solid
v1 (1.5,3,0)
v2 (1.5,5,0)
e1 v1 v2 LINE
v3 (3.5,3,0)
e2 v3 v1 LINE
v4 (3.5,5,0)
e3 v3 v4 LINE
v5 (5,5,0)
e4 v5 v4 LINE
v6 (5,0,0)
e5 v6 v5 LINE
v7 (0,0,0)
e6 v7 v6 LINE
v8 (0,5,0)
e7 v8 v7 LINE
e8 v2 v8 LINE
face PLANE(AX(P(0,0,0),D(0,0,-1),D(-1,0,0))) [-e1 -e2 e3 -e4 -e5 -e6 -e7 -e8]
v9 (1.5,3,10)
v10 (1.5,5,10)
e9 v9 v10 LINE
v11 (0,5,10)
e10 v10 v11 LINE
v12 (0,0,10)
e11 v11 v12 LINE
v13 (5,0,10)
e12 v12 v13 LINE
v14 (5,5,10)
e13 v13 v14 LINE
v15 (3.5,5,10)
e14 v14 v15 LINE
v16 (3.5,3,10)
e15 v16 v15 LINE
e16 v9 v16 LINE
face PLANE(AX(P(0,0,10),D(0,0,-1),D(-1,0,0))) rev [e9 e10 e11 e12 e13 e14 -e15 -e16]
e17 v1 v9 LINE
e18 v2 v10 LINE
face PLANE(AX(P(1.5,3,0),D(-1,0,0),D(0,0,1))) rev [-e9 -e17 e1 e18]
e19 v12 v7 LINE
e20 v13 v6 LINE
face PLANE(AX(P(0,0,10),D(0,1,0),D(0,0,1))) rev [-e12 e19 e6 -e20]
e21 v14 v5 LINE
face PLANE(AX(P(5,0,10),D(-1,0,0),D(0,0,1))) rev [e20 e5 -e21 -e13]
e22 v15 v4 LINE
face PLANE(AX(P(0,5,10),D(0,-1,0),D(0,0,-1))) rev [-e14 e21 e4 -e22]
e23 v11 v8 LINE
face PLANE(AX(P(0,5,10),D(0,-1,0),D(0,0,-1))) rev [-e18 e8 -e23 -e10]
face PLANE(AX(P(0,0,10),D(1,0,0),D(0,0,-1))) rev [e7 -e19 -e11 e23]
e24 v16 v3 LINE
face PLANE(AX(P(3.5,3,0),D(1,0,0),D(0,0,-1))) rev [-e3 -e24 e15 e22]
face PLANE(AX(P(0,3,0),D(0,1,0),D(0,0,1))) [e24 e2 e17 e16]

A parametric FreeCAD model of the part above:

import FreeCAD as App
import Part
import Sketcher
from FreeCAD import Vector

doc = App.newDocument("Part")
body = doc.addObject("PartDesign::Body", "Body")

# Sketch on XY plane
sketch1 = doc.addObject("Sketcher::SketchObject", "Sketch")
body.addObject(sketch1)
sketch1.AttachmentSupport = (doc.XY_Plane, [""])
sketch1.MapMode = "FlatFace"
sketch1.addGeometry(Part.LineSegment(Vector(0, 5, 0), Vector(0, 0, 0)), False)
sketch1.addGeometry(Part.LineSegment(Vector(0, 0, 0), Vector(5, 0, 0)), False)
sketch1.addGeometry(Part.LineSegment(Vector(5, 0, 0), Vector(5, 5, 0)), False)
sketch1.addGeometry(Part.LineSegment(Vector(5, 5, 0), Vector(0, 5, 0)), False)
sketch1.addConstraint(Sketcher.Constraint("Coincident", 0, 2, 1, 1))
sketch1.addConstraint(Sketcher.Constraint("Coincident", 1, 2, 2, 1))
sketch1.addConstraint(Sketcher.Constraint("Coincident", 2, 2, 3, 1))
sketch1.addConstraint(Sketcher.Constraint("Coincident", 3, 2, 0, 1))
sketch1.addConstraint(Sketcher.Constraint("Vertical", 0))
sketch1.addConstraint(Sketcher.Constraint("Horizontal", 1))
sketch1.addConstraint(Sketcher.Constraint("Vertical", 2))
sketch1.addConstraint(Sketcher.Constraint("Horizontal", 3))
sketch1.addConstraint(Sketcher.Constraint("Coincident", 0, 2, -1, 1))
sketch1.addConstraint(Sketcher.Constraint("Equal", 3, 0))
sketch1.addConstraint(Sketcher.Constraint("DistanceX", 1, 1, 1, 2, 5.0))
pad1 = doc.addObject("PartDesign::Pad", "Pad")
body.addObject(pad1)
pad1.Profile = sketch1
pad1.Length = 10

# Sketch on XZ plane
sketch2 = doc.addObject("Sketcher::SketchObject", "Sketch001")
body.addObject(sketch2)
sketch2.AttachmentSupport = (doc.XZ_Plane, [""])
sketch2.MapMode = "FlatFace"
sketch2.AttachmentOffset = App.Placement(Vector(0, 0, -5), App.Rotation())
sketch2.addGeometry(Part.LineSegment(Vector(1.5, 0, 0), Vector(1.5, 10, 0)), False)
sketch2.addGeometry(Part.LineSegment(Vector(1.5, 10, 0), Vector(3.5, 10, 0)), False)
sketch2.addGeometry(Part.LineSegment(Vector(3.5, 10, 0), Vector(3.5, 0, 0)), False)
sketch2.addGeometry(Part.LineSegment(Vector(3.5, 0, 0), Vector(1.5, 0, 0)), False)
sketch2.addConstraint(Sketcher.Constraint("Coincident", 0, 2, 1, 1))
sketch2.addConstraint(Sketcher.Constraint("Coincident", 1, 2, 2, 1))
sketch2.addConstraint(Sketcher.Constraint("Coincident", 2, 2, 3, 1))
sketch2.addConstraint(Sketcher.Constraint("Coincident", 3, 2, 0, 1))
sketch2.addConstraint(Sketcher.Constraint("Vertical", 0))
sketch2.addConstraint(Sketcher.Constraint("Horizontal", 1))
sketch2.addConstraint(Sketcher.Constraint("Vertical", 2))
sketch2.addConstraint(Sketcher.Constraint("Horizontal", 3))
sketch2.addConstraint(Sketcher.Constraint("PointOnObject", 2, 2, -1))
sketch2.addConstraint(Sketcher.Constraint("DistanceX", 1, 1, 1, 2, 2.0))
sketch2.addConstraint(Sketcher.Constraint("DistanceY", 0, 1, 0, 2, 10.0))
sketch2.addConstraint(Sketcher.Constraint("DistanceX", -1, 1, 0, 2, 1.5))
pocket1 = doc.addObject("PartDesign::Pocket", "Pocket")
body.addObject(pocket1)
pocket1.Profile = sketch2
pocket1.Length = 2
pocket1.Reversed = True

doc.recompute()
